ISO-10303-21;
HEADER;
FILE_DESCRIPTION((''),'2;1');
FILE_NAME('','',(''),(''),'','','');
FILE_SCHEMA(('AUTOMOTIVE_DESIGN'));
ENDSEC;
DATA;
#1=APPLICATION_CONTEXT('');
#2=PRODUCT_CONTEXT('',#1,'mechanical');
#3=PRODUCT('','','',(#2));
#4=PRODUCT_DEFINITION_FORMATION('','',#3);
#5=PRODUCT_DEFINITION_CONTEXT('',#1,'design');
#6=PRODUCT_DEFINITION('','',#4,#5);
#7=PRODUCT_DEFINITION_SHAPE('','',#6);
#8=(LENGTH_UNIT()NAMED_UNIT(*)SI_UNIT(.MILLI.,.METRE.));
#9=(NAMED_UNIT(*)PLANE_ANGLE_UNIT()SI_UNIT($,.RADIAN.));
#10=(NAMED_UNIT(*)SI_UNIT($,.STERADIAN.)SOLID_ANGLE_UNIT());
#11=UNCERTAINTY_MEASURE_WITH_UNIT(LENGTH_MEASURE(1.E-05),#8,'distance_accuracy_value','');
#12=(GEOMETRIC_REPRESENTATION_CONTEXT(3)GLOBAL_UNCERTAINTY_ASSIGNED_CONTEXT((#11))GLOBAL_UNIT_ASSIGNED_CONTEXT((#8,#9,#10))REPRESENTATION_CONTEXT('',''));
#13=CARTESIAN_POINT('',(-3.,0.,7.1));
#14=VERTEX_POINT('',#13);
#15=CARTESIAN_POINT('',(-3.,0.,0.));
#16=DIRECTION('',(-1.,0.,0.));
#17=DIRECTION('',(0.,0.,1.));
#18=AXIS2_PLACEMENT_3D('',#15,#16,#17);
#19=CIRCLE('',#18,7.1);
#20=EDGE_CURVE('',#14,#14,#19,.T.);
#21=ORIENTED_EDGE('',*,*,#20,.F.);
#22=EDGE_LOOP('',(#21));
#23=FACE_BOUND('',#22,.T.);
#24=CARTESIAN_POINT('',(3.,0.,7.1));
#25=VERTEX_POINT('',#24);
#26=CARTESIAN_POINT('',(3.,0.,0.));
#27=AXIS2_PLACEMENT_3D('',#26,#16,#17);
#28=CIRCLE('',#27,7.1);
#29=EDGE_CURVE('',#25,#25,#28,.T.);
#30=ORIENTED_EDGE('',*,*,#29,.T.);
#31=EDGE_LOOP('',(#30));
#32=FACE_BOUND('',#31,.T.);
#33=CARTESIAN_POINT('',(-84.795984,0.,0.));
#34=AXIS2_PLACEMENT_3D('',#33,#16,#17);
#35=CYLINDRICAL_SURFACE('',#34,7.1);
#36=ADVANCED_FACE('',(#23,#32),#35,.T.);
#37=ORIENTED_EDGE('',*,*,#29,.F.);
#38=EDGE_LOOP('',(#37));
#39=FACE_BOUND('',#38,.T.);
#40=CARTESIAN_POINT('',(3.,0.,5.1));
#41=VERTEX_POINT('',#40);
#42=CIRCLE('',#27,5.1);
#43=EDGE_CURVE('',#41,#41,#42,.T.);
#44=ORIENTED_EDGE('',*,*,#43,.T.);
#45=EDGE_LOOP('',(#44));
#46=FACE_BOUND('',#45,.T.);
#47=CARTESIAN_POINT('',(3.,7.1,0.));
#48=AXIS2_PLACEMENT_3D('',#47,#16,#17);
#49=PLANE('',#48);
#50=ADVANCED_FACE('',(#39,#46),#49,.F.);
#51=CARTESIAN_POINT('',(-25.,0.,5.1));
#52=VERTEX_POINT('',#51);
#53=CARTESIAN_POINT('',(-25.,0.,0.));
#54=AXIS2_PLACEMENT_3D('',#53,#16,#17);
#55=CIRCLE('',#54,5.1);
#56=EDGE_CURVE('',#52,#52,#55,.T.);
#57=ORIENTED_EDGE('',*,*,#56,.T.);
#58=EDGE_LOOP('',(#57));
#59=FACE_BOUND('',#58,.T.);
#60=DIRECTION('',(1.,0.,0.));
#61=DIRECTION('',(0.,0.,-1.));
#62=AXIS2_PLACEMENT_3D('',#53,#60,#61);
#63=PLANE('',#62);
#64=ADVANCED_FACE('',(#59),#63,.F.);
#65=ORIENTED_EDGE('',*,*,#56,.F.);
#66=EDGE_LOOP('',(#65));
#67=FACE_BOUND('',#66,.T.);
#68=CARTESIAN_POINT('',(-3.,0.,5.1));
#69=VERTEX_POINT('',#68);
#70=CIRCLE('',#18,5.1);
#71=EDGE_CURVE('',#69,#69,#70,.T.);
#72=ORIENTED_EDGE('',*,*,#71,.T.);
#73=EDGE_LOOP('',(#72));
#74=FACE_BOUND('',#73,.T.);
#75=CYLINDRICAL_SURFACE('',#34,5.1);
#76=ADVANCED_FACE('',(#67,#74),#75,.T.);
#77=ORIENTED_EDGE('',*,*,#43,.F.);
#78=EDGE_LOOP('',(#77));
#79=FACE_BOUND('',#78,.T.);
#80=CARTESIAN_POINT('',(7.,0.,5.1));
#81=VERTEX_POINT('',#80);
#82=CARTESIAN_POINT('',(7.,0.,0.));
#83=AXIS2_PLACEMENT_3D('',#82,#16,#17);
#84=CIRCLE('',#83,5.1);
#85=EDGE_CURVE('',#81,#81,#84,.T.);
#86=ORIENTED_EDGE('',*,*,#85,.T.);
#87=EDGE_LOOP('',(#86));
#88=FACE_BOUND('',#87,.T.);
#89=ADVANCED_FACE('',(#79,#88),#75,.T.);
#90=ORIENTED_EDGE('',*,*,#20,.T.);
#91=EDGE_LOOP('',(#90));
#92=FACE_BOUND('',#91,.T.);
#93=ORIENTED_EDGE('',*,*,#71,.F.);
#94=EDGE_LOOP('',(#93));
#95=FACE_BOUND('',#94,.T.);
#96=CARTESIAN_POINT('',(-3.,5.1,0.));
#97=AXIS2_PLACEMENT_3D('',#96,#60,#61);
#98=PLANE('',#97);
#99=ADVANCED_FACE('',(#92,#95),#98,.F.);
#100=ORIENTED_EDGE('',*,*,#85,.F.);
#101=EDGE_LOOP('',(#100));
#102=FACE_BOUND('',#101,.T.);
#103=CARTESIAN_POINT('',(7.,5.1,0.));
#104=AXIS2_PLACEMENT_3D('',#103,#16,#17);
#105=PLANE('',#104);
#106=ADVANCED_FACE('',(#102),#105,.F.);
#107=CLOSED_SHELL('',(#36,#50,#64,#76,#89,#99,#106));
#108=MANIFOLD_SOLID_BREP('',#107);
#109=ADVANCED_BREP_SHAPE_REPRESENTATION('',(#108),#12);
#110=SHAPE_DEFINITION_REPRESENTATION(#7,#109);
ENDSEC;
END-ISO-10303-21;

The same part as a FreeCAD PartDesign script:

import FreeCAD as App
import Part
import Sketcher
from FreeCAD import Vector


def add_polygon(sketch, points):
    """Adds a closed chain of lines whose ends are joined by coincident constraints."""
    first, n = sketch.GeometryCount, len(points)
    for a, b in zip(points, points[1:] + points[:1]):
        sketch.addGeometry(Part.LineSegment(App.Vector(*a, 0), App.Vector(*b, 0)), False)
    for i in range(n):
        sketch.addConstraint(Sketcher.Constraint("Coincident", first + i, 2, first + (i + 1) % n, 1))

doc = App.newDocument("Part")
body = doc.addObject("PartDesign::Body", "Body")

sketch1 = doc.addObject("Sketcher::SketchObject", "Sketch")
body.addObject(sketch1)
sketch1.AttachmentSupport = (doc.XY_Plane, [""])
sketch1.MapMode = "FlatFace"
add_polygon(sketch1, [(-25, 5.1), (-25, 0), (7, 0), (7, 5.1), (3, 5.1), (3, 7.1), (-3, 7.1), (-3, 5.1)])
sketch1.addConstraint(Sketcher.Constraint("Vertical", 0))
sketch1.addConstraint(Sketcher.Constraint("Horizontal", 1))
sketch1.addConstraint(Sketcher.Constraint("Vertical", 2))
sketch1.addConstraint(Sketcher.Constraint("Horizontal", 3))
sketch1.addConstraint(Sketcher.Constraint("Vertical", 4))
sketch1.addConstraint(Sketcher.Constraint("Horizontal", 5))
sketch1.addConstraint(Sketcher.Constraint("Vertical", 6))
sketch1.addConstraint(Sketcher.Constraint("Horizontal", 7))
sketch1.addConstraint(Sketcher.Constraint("Symmetric", 3, 2, 6, 2, -2))
sketch1.addConstraint(Sketcher.Constraint("PointOnObject", 0, 2, -1))
sketch1.addConstraint(Sketcher.Constraint("DistanceX", 1, 1, 1, 2, 32.0))
sketch1.addConstraint(Sketcher.Constraint("DistanceX", 3, 2, 3, 1, 4.0))
sketch1.addConstraint(Sketcher.Constraint("DistanceX", 5, 2, 5, 1, 6.0))
sketch1.addConstraint(Sketcher.Constraint("DistanceY", 4, 1, 4, 2, 2.0))
sketch1.addConstraint(Sketcher.Constraint("DistanceY", 0, 2, 0, 1, 5.1))
revolution = doc.addObject("PartDesign::Revolution", "Revolution")
body.addObject(revolution)
revolution.Profile = sketch1
revolution.ReferenceAxis = (sketch1, ["H_Axis"])
revolution.Angle = 360

doc.recompute()
